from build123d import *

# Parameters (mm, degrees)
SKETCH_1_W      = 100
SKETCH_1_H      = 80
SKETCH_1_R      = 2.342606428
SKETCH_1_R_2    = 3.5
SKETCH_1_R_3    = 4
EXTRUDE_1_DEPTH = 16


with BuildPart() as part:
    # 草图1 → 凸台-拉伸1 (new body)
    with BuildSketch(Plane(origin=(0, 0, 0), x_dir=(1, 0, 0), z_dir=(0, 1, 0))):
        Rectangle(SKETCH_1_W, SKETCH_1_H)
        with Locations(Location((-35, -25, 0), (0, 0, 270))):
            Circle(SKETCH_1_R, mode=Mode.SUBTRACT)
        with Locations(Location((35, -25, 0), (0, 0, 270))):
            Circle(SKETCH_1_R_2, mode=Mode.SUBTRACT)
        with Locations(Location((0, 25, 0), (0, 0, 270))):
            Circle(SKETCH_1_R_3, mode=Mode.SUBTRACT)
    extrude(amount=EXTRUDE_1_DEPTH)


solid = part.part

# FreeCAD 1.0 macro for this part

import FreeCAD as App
import Part
import Sketcher

V = App.Vector
Q = App.Units.Quantity

doc = App.newDocument("Part")
body = doc.addObject("PartDesign::Body", "Body")

# Sketch on XZ plane
sketch1 = body.newObject("Sketcher::SketchObject", "Sketch")
sketch1.AttachmentSupport = (doc.getObject("XZ_Plane"), [""])
sketch1.MapMode = "FlatFace"
sketch1.addGeometry([
    Part.LineSegment(V(-50, -40, 0), V(-50, 40, 0)),  # 0
    Part.LineSegment(V(-50, 40, 0), V(50, 40, 0)),  # 1
    Part.LineSegment(V(50, 40, 0), V(50, -40, 0)),  # 2
    Part.LineSegment(V(50, -40, 0), V(-50, -40, 0)),  # 3
    Part.Circle(V(-35, 25, 0), V(0, 0, 1), 2.3),  # 4
    Part.Circle(V(35, 25, 0), V(0, 0, 1), 3.5),  # 5
    Part.Circle(V(0, -25, 0), V(0, 0, 1), 4),  # 6
], False)
sketch1.addConstraint([
    Sketcher.Constraint("Coincident", 0, 2, 1, 1),
    Sketcher.Constraint("Coincident", 1, 2, 2, 1),
    Sketcher.Constraint("Coincident", 2, 2, 3, 1),
    Sketcher.Constraint("Coincident", 3, 2, 0, 1),
    Sketcher.Constraint("Vertical", 0),
    Sketcher.Constraint("Horizontal", 1),
    Sketcher.Constraint("Vertical", 2),
    Sketcher.Constraint("Horizontal", 3),
    Sketcher.Constraint("Symmetric", 0, 2, 2, 2, -1, 1),
    Sketcher.Constraint("Symmetric", 4, 3, 5, 3, -2),
    Sketcher.Constraint("PointOnObject", 6, 3, -2),
    Sketcher.Constraint("Diameter", 5, Q("7 mm")),
    Sketcher.Constraint("Diameter", 6, Q("8 mm")),
    Sketcher.Constraint("DistanceX", 1, 1, 1, 2, Q("100 mm")),
    Sketcher.Constraint("DistanceY", 0, 1, 0, 2, Q("80 mm")),
    Sketcher.Constraint("DistanceX", 4, 3, -1, 1, Q("35 mm")),
    Sketcher.Constraint("DistanceY", -1, 1, 4, 3, Q("25 mm")),
    Sketcher.Constraint("DistanceY", 6, 3, -1, 1, Q("25 mm")),
    Sketcher.Constraint("Diameter", 4, Q("4.685213 mm")),
])
pad1 = body.newObject("PartDesign::Pad", "Pad")
pad1.Profile = sketch1
pad1.Length = 16
pad1.Reversed = True

doc.recompute()
